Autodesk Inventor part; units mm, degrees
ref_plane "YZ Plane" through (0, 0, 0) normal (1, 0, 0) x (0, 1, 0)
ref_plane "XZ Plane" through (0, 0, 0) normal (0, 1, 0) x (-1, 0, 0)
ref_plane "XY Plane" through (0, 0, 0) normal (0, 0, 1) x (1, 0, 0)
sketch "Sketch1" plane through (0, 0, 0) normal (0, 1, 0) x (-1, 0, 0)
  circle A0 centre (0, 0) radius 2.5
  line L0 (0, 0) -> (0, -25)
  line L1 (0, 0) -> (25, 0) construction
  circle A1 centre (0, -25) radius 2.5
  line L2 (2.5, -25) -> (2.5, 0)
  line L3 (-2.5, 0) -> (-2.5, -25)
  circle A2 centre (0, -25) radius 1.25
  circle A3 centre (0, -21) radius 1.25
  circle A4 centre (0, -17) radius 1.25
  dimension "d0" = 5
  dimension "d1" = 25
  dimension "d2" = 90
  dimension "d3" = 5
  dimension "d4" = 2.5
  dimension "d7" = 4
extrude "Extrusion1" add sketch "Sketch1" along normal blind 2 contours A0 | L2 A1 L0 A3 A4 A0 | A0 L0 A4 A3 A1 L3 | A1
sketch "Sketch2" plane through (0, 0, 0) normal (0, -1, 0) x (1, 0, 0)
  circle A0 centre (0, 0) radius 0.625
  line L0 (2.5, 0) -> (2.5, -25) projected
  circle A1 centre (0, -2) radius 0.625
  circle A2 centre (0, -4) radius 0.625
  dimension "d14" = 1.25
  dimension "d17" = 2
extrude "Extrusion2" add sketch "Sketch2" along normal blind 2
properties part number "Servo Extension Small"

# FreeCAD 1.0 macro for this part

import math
import FreeCAD as App
import Part
import Sketcher

V = App.Vector
Q = App.Units.Quantity

doc = App.newDocument("Part")
body = doc.addObject("PartDesign::Body", "Body")

# Sketch on XZ plane
sketch1 = body.newObject("Sketcher::SketchObject", "Sketch")
sketch1.AttachmentSupport = (doc.getObject("XZ_Plane"), [""])
sketch1.MapMode = "FlatFace"
sketch1.addGeometry(Part.ArcOfCircle(Part.Circle(V(0, 0, 0), V(0, 0, 1), 2.5), math.radians(0), math.radians(180)), False)
sketch1.addGeometry(Part.LineSegment(V(2.5, 0, 0), V(2.5, -25, 0)), False)
sketch1.addGeometry(Part.ArcOfCircle(Part.Circle(V(0, -25, 0), V(0, 0, 1), 2.5), math.radians(180), math.radians(360)), False)
sketch1.addGeometry(Part.LineSegment(V(-2.5, -25, 0), V(-2.5, 0, 0)), False)
sketch1.addGeometry(Part.Circle(V(0, -21, 0), V(0, 0, 1), 1.2), False)
sketch1.addGeometry(Part.Circle(V(0, -17, 0), V(0, 0, 1), 1.2), False)
sketch1.addGeometry(Part.Circle(V(0, -25, 0), V(0, 0, 1), 1.2), False)
sketch1.addConstraint(Sketcher.Constraint("Tangent", 0, 1, 1, 1))
sketch1.addConstraint(Sketcher.Constraint("Tangent", 1, 2, 2, 2))
sketch1.addConstraint(Sketcher.Constraint("Tangent", 2, 1, 3, 1))
sketch1.addConstraint(Sketcher.Constraint("Tangent", 3, 2, 0, 2))
sketch1.addConstraint(Sketcher.Constraint("Vertical", 1))
sketch1.addConstraint(Sketcher.Constraint("Vertical", 3))
sketch1.addConstraint(Sketcher.Constraint("Coincident", 0, 3, -1, 1))
sketch1.addConstraint(Sketcher.Constraint("Coincident", 6, 3, 2, 3))
sketch1.addConstraint(Sketcher.Constraint("Equal", 4, 5))
sketch1.addConstraint(Sketcher.Constraint("Equal", 5, 6))
sketch1.addConstraint(Sketcher.Constraint("PointOnObject", 4, 3, -2))
sketch1.addConstraint(Sketcher.Constraint("PointOnObject", 5, 3, -2))
sketch1.addConstraint(Sketcher.Constraint("Diameter", 4, Q("2.5 mm")))
sketch1.addConstraint(Sketcher.Constraint("Radius", 0, Q("2.5 mm")))
sketch1.addConstraint(Sketcher.Constraint("DistanceY", 1, 2, 1, 1, Q("25 mm")))
sketch1.addConstraint(Sketcher.Constraint("DistanceY", 2, 3, 4, 3, Q("4 mm")))
sketch1.addConstraint(Sketcher.Constraint("DistanceY", 4, 3, 5, 3, Q("4 mm")))
pad1 = body.newObject("PartDesign::Pad", "Pad")
pad1.Profile = sketch1
pad1.Length = 2
pad1.Reversed = True

# Sketch on XZ plane
sketch2 = body.newObject("Sketcher::SketchObject", "Sketch001")
sketch2.AttachmentSupport = (doc.getObject("XZ_Plane"), [""])
sketch2.MapMode = "FlatFace"
sketch2.addGeometry(Part.Circle(V(0, 0, 0), V(0, 0, 1), 0.6), False)
sketch2.addGeometry(Part.Circle(V(0, -2, 0), V(0, 0, 1), 0.6), False)
sketch2.addGeometry(Part.Circle(V(0, -4, 0), V(0, 0, 1), 0.6), False)
sketch2.addConstraint(Sketcher.Constraint("Coincident", 0, 3, -1, 1))
sketch2.addConstraint(Sketcher.Constraint("Equal", 0, 1))
sketch2.addConstraint(Sketcher.Constraint("Equal", 1, 2))
sketch2.addConstraint(Sketcher.Constraint("PointOnObject", 1, 3, -2))
sketch2.addConstraint(Sketcher.Constraint("PointOnObject", 2, 3, -2))
sketch2.addConstraint(Sketcher.Constraint("Diameter", 0, Q("1.25 mm")))
sketch2.addConstraint(Sketcher.Constraint("DistanceY", 1, 3, -1, 1, Q("2 mm")))
sketch2.addConstraint(Sketcher.Constraint("DistanceY", 2, 3, 1, 3, Q("2 mm")))
pad2 = body.newObject("PartDesign::Pad", "Pad001")
pad2.Profile = sketch2
pad2.Length = 2

doc.recompute()
